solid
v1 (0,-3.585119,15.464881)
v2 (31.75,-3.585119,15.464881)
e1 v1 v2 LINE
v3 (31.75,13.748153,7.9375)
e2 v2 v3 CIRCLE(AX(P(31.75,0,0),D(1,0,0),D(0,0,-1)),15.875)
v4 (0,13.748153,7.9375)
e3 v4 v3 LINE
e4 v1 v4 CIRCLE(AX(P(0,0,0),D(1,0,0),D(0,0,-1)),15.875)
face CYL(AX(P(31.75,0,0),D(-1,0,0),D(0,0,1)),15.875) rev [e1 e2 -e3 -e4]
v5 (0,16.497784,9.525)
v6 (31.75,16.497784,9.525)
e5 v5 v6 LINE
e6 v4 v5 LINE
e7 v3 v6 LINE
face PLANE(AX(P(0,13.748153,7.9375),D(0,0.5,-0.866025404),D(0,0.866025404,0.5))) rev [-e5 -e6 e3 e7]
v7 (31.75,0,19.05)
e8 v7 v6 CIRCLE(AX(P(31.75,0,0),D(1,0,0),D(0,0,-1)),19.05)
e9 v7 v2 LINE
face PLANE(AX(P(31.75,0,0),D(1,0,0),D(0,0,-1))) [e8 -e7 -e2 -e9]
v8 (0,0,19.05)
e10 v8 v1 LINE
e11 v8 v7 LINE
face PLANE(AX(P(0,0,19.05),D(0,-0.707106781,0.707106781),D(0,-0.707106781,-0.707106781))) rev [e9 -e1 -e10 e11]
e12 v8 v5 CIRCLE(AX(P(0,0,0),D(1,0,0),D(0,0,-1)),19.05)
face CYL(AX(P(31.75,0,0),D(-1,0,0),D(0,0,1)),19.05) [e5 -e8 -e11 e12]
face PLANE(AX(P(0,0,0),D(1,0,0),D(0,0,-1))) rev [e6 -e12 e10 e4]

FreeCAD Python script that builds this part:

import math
import FreeCAD as App
import Part
import Sketcher

V = App.Vector
Q = App.Units.Quantity

doc = App.newDocument("Part")
body = doc.addObject("PartDesign::Body", "Body")

sketch1 = body.newObject("Sketcher::SketchObject", "Sketch")
sketch1.AttachmentSupport = (doc.getObject("YZ_Plane"), [""])
sketch1.MapMode = "FlatFace"
sketch1.addGeometry([
    Part.Circle(V(0, 0, 0), V(0, 0, 1), 19),
    Part.Circle(V(0, 0, 0), V(0, 0, 1), 16),
], False)
sketch1.addConstraint([
    Sketcher.Constraint("Coincident", 0, 3, -1, 1),
    Sketcher.Constraint("Coincident", 1, 3, -1, 1),
    Sketcher.Constraint("Diameter", 0, Q("1.5 in")),
    Sketcher.Constraint("Diameter", 1, Q("1.25 in")),
])
pad1 = body.newObject("PartDesign::Pad", "Pad")
pad1.Profile = sketch1
pad1.Length = Q("1.25 in")

sketch2 = body.newObject("Sketcher::SketchObject", "Sketch001")
sketch2.AttachmentSupport = (doc.getObject("YZ_Plane"), [""])
sketch2.MapMode = "FlatFace"
sketch2.AttachmentOffset = App.Placement(V(0, 0, 1.25 * 25.4), App.Rotation())
sketch2.addGeometry([
    Part.LineSegment(V(0, 19.1, 0), V(0, 15.9, 0)),
    Part.ArcOfCircle(Part.Circle(V(0, 0, 0), V(0, 0, 1), 15.9), math.radians(30), math.radians(90)),
    Part.LineSegment(V(13.7, 7.9, 0), V(16.5, 9.5, 0)),
    Part.ArcOfCircle(Part.Circle(V(0, 0, 0), V(0, 0, 1), 19.1), math.radians(30), math.radians(90)),
], False)
sketch2.addConstraint([
    Sketcher.Constraint("Coincident", 0, 2, 1, 2),
    Sketcher.Constraint("Coincident", 1, 1, 2, 1),
    Sketcher.Constraint("Coincident", 2, 2, 3, 1),
    Sketcher.Constraint("Coincident", 3, 2, 0, 1),
    Sketcher.Constraint("Vertical", 0),
    Sketcher.Constraint("Coincident", 1, 3, -1, 1),
    Sketcher.Constraint("Coincident", 3, 3, -1, 1),
    Sketcher.Constraint("PointOnObject", 0, 2, -2),
    Sketcher.Constraint("Radius", 3, Q("0.75 in")),
    Sketcher.Constraint("Angle", 2, Q("30 deg")),
    Sketcher.Constraint("Radius", 1, Q("0.625 in")),
    Sketcher.Constraint("DistanceY", 2, 2, 0, 2, Q("0.25 in")),
])
pocket1 = body.newObject("PartDesign::Pocket", "Pocket")
pocket1.Profile = sketch2
pocket1.Type = "ThroughAll"

sketch3 = body.newObject("Sketcher::SketchObject", "Sketch002")
sketch3.AttachmentSupport = (doc.getObject("YZ_Plane"), [""])
sketch3.MapMode = "FlatFace"
sketch3.AttachmentOffset = App.Placement(V(0, 0, 1.25 * 25.4), App.Rotation())
sketch3.addGeometry([
    Part.LineSegment(V(0, 15.9, 0), V(0, 19.1, 0)),
    Part.LineSegment(V(0, 19.1, 0), V(-3.6, 15.5, 0)),
    Part.ArcOfCircle(Part.Circle(V(0, 0, 0), V(0, 0, 1), 15.9), math.radians(90), math.radians(103.05)),
], False)
sketch3.addConstraint([
    Sketcher.Constraint("Coincident", 0, 2, 1, 1),
    Sketcher.Constraint("Coincident", 1, 2, 2, 2),
    Sketcher.Constraint("Coincident", 2, 1, 0, 1),
    Sketcher.Constraint("Vertical", 0),
    Sketcher.Constraint("Coincident", 2, 3, -1, 1),
    Sketcher.Constraint("PointOnObject", 0, 2, -2),
    Sketcher.Constraint("Angle", 1, Q("-135 deg")),
    Sketcher.Constraint("Radius", 2, Q("0.625 in")),
    Sketcher.Constraint("DistanceY", 0, 1, 0, 2, Q("0.125 in")),
])
pocket2 = body.newObject("PartDesign::Pocket", "Pocket001")
pocket2.Profile = sketch3
pocket2.Type = "ThroughAll"

doc.recompute()
